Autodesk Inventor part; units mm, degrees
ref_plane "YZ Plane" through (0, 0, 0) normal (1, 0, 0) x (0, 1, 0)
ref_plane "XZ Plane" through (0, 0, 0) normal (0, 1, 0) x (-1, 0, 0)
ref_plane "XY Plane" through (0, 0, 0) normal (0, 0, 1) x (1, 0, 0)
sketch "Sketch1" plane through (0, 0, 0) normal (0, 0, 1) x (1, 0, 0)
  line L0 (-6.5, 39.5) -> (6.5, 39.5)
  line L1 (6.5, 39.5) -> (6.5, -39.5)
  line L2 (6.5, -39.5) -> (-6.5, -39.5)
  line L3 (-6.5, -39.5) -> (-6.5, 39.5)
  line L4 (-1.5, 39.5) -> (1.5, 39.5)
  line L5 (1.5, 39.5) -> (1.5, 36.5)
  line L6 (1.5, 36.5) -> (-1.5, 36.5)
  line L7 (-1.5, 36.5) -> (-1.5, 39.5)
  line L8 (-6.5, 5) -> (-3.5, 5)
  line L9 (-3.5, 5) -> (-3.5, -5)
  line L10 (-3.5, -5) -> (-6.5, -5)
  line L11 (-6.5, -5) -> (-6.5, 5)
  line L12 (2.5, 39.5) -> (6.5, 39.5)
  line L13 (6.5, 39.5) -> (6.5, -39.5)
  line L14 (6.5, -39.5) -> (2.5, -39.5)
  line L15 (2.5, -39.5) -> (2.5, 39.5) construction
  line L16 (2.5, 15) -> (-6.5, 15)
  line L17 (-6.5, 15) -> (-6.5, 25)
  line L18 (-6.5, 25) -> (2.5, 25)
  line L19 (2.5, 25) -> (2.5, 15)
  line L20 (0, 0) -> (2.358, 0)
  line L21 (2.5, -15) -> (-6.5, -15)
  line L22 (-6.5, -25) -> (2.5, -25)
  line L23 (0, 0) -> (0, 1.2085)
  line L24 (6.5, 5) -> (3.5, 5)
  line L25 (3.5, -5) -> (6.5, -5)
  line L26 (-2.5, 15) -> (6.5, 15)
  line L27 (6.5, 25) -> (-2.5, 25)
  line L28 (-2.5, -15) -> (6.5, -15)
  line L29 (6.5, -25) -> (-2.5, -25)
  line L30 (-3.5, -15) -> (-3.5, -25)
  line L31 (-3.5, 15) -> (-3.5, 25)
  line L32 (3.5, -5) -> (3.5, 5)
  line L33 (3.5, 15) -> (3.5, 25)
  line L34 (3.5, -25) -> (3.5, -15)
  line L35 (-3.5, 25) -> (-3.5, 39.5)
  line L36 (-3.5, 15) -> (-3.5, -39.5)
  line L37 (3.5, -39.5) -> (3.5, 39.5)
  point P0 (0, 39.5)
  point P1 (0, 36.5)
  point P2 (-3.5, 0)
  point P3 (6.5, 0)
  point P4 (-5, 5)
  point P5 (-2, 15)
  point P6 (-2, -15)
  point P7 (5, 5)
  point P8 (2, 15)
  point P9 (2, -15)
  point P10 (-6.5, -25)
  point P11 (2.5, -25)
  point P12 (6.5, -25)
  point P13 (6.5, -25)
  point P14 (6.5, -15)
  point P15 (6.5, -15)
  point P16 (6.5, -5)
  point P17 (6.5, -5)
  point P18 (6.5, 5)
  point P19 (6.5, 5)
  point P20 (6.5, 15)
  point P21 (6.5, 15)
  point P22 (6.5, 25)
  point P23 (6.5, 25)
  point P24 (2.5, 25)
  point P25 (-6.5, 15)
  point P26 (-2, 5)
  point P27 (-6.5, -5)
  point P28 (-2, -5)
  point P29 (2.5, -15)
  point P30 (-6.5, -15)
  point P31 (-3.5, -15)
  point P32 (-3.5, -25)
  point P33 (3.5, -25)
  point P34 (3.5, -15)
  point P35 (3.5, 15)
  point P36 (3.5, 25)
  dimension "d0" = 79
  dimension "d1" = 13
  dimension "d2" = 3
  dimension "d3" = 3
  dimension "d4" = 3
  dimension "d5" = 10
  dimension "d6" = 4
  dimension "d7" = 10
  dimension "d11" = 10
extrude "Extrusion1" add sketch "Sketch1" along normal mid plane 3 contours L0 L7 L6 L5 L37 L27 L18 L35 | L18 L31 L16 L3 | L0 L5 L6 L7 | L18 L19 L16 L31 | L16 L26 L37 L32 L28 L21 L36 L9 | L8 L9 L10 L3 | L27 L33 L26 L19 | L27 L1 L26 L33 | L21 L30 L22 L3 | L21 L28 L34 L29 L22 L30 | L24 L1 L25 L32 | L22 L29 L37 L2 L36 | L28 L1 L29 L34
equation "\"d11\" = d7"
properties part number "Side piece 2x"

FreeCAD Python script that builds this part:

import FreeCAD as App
import Part
import Sketcher

V = App.Vector
Q = App.Units.Quantity

doc = App.newDocument("Part")
body = doc.addObject("PartDesign::Body", "Body")

sketch1 = doc.addObject("Sketcher::SketchObject", "Sketch")
body.addObject(sketch1)
sketch1.AttachmentSupport = (doc.XY_Plane, [""])
sketch1.MapMode = "FlatFace"
sketch1.addGeometry([
    Part.LineSegment(V(-3.5, 39.5, 0), V(-3.5, 25, 0)),
    Part.LineSegment(V(-3.5, 25, 0), V(-6.5, 25, 0)),
    Part.LineSegment(V(-6.5, 25, 0), V(-6.5, 15, 0)),
    Part.LineSegment(V(-6.5, 15, 0), V(-3.5, 15, 0)),
    Part.LineSegment(V(-3.5, 15, 0), V(-3.5, 5, 0)),
    Part.LineSegment(V(-3.5, 5, 0), V(-6.5, 5, 0)),
    Part.LineSegment(V(-6.5, 5, 0), V(-6.5, -5, 0)),
    Part.LineSegment(V(-6.5, -5, 0), V(-3.5, -5, 0)),
    Part.LineSegment(V(-3.5, -5, 0), V(-3.5, -15, 0)),
    Part.LineSegment(V(-3.5, -15, 0), V(-6.5, -15, 0)),
    Part.LineSegment(V(-6.5, -15, 0), V(-6.5, -25, 0)),
    Part.LineSegment(V(-6.5, -25, 0), V(-3.5, -25, 0)),
    Part.LineSegment(V(-3.5, -25, 0), V(-3.5, -39.5, 0)),
    Part.LineSegment(V(-3.5, -39.5, 0), V(3.5, -39.5, 0)),
    Part.LineSegment(V(3.5, -39.5, 0), V(3.5, -25, 0)),
    Part.LineSegment(V(3.5, -25, 0), V(6.5, -25, 0)),
    Part.LineSegment(V(6.5, -25, 0), V(6.5, -15, 0)),
    Part.LineSegment(V(6.5, -15, 0), V(3.5, -15, 0)),
    Part.LineSegment(V(3.5, -15, 0), V(3.5, -5, 0)),
    Part.LineSegment(V(3.5, -5, 0), V(6.5, -5, 0)),
    Part.LineSegment(V(6.5, -5, 0), V(6.5, 5, 0)),
    Part.LineSegment(V(6.5, 5, 0), V(3.5, 5, 0)),
    Part.LineSegment(V(3.5, 5, 0), V(3.5, 15, 0)),
    Part.LineSegment(V(3.5, 15, 0), V(6.5, 15, 0)),
    Part.LineSegment(V(6.5, 15, 0), V(6.5, 25, 0)),
    Part.LineSegment(V(6.5, 25, 0), V(3.5, 25, 0)),
    Part.LineSegment(V(3.5, 25, 0), V(3.5, 39.5, 0)),
    Part.LineSegment(V(3.5, 39.5, 0), V(-3.5, 39.5, 0)),
], False)
sketch1.addConstraint([
    Sketcher.Constraint("Coincident", 0, 2, 1, 1),
    Sketcher.Constraint("Coincident", 1, 2, 2, 1),
    Sketcher.Constraint("Coincident", 2, 2, 3, 1),
    Sketcher.Constraint("Coincident", 3, 2, 4, 1),
    Sketcher.Constraint("Coincident", 4, 2, 5, 1),
    Sketcher.Constraint("Coincident", 5, 2, 6, 1),
    Sketcher.Constraint("Coincident", 6, 2, 7, 1),
    Sketcher.Constraint("Coincident", 7, 2, 8, 1),
    Sketcher.Constraint("Coincident", 8, 2, 9, 1),
    Sketcher.Constraint("Coincident", 9, 2, 10, 1),
    Sketcher.Constraint("Coincident", 10, 2, 11, 1),
    Sketcher.Constraint("Coincident", 11, 2, 12, 1),
    Sketcher.Constraint("Coincident", 12, 2, 13, 1),
    Sketcher.Constraint("Coincident", 13, 2, 14, 1),
    Sketcher.Constraint("Coincident", 14, 2, 15, 1),
    Sketcher.Constraint("Coincident", 15, 2, 16, 1),
    Sketcher.Constraint("Coincident", 16, 2, 17, 1),
    Sketcher.Constraint("Coincident", 17, 2, 18, 1),
    Sketcher.Constraint("Coincident", 18, 2, 19, 1),
    Sketcher.Constraint("Coincident", 19, 2, 20, 1),
    Sketcher.Constraint("Coincident", 20, 2, 21, 1),
    Sketcher.Constraint("Coincident", 21, 2, 22, 1),
    Sketcher.Constraint("Coincident", 22, 2, 23, 1),
    Sketcher.Constraint("Coincident", 23, 2, 24, 1),
    Sketcher.Constraint("Coincident", 24, 2, 25, 1),
    Sketcher.Constraint("Coincident", 25, 2, 26, 1),
    Sketcher.Constraint("Coincident", 26, 2, 27, 1),
    Sketcher.Constraint("Coincident", 27, 2, 0, 1),
    Sketcher.Constraint("Vertical", 0),
    Sketcher.Constraint("Horizontal", 1),
    Sketcher.Constraint("Vertical", 2),
    Sketcher.Constraint("Horizontal", 3),
    Sketcher.Constraint("Vertical", 4),
    Sketcher.Constraint("Horizontal", 5),
    Sketcher.Constraint("Vertical", 6),
    Sketcher.Constraint("Horizontal", 7),
    Sketcher.Constraint("Vertical", 8),
    Sketcher.Constraint("Horizontal", 9),
    Sketcher.Constraint("Vertical", 10),
    Sketcher.Constraint("Horizontal", 11),
    Sketcher.Constraint("Vertical", 12),
    Sketcher.Constraint("Horizontal", 13),
    Sketcher.Constraint("Vertical", 14),
    Sketcher.Constraint("Horizontal", 15),
    Sketcher.Constraint("Vertical", 16),
    Sketcher.Constraint("Horizontal", 17),
    Sketcher.Constraint("Vertical", 18),
    Sketcher.Constraint("Horizontal", 19),
    Sketcher.Constraint("Vertical", 20),
    Sketcher.Constraint("Horizontal", 21),
    Sketcher.Constraint("Vertical", 22),
    Sketcher.Constraint("Horizontal", 23),
    Sketcher.Constraint("Vertical", 24),
    Sketcher.Constraint("Horizontal", 25),
    Sketcher.Constraint("Vertical", 26),
    Sketcher.Constraint("Horizontal", 27),
    Sketcher.Constraint("Symmetric", 0, 2, 14, 2, -1, 1),
    Sketcher.Constraint("Symmetric", 2, 2, 16, 2, -1, 1),
    Sketcher.Constraint("Symmetric", 4, 2, 18, 2, -1, 1),
    Sketcher.Constraint("Symmetric", 6, 2, 20, 2, -1, 1),
    Sketcher.Constraint("Symmetric", 8, 2, 22, 2, -1, 1),
    Sketcher.Constraint("Symmetric", 10, 2, 24, 2, -1, 1),
    Sketcher.Constraint("Symmetric", 12, 2, 26, 2, -1, 1),
    Sketcher.Constraint("Symmetric", 11, 2, 14, 2, -2),
    Sketcher.Constraint("Symmetric", 9, 2, 16, 2, -2),
    Sketcher.Constraint("Symmetric", 7, 2, 18, 2, -2),
    Sketcher.Constraint("Vertical", 0, 2, 3, 2),
    Sketcher.Constraint("Vertical", 2, 2, 5, 2),
    Sketcher.Constraint("Equal", 2, 4),
    Sketcher.Constraint("Equal", 4, 6),
    Sketcher.Constraint("DistanceX", 1, 2, 1, 1, Q("3 mm")),
    Sketcher.Constraint("DistanceY", 2, 2, 2, 1, Q("10 mm")),
    Sketcher.Constraint("DistanceX", 10, 2, 13, 2, Q("10 mm")),
    Sketcher.Constraint("DistanceY", 0, 2, 0, 1, Q("14.5 mm")),
])
pad1 = doc.addObject("PartDesign::Pad", "Pad")
body.addObject(pad1)
pad1.Profile = sketch1
pad1.Length = 3
pad1.Midplane = True

doc.recompute()
